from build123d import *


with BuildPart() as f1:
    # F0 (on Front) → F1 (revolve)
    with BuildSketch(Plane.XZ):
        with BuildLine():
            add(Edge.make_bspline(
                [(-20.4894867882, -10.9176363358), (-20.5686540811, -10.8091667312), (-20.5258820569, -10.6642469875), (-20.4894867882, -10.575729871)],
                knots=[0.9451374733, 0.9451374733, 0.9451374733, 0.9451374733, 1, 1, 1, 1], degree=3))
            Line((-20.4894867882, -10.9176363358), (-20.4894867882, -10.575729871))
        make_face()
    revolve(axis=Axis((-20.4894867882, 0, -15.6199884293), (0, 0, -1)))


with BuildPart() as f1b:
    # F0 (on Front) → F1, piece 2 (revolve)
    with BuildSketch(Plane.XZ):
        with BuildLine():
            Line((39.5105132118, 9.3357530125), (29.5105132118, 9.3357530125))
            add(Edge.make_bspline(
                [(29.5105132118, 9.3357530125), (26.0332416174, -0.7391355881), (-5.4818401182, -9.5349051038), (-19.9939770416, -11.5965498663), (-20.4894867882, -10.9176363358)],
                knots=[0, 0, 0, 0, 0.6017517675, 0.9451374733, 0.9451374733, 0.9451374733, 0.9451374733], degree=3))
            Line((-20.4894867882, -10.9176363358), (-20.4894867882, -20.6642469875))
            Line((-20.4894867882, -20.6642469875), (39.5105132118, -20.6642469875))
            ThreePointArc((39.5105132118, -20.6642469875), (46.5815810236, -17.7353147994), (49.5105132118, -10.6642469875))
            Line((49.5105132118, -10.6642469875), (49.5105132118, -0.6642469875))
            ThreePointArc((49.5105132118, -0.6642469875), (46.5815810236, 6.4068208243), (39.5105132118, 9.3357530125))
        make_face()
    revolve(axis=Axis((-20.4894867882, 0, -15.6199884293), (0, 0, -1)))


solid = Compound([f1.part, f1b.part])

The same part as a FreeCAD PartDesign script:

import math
import FreeCAD as App
import Part
import Sketcher

V = App.Vector

doc = App.newDocument("Part")
body = doc.addObject("PartDesign::Body", "Body")

# Sketch on XZ plane
sketch1 = body.newObject("Sketcher::SketchObject", "Sketch")
sketch1.AttachmentSupport = (doc.getObject("XZ_Plane"), [""])
sketch1.MapMode = "FlatFace"
sketch1.addGeometry([
    Part.BSplineCurve([V(-20.489487, -10.917636, 0), V(-20.568654, -10.809167, 0), V(-20.525882, -10.664247, 0), V(-20.489487, -10.57573, 0)], [4, 4], [0.945137473, 1], False, 3, [1, 1, 1, 1], False),
    Part.LineSegment(V(-20.489487, -10.917636, 0), V(-20.489487, -10.57573, 0)),
], False)
sketch1.addGeometry(Part.LineSegment(V(-20.489487, -10.57573, 0), V(-20.489487, -10.917636, 0)), True)  # axis
sketch1.addConstraint([
    Sketcher.Constraint("Block", 0),
    Sketcher.Constraint("Coincident", 0, 1, 1, 1),
    Sketcher.Constraint("Coincident", 1, 2, 0, 2),
    Sketcher.Constraint("Vertical", 2),
    Sketcher.Constraint("Coincident", 2, 1, 1, 2),
    Sketcher.Constraint("Equal", 1, 2),
])
revolution = body.newObject("PartDesign::Revolution", "Revolution")
revolution.Profile = sketch1
revolution.ReferenceAxis = (sketch1, ["Axis0"])
revolution.Angle = 360
body2 = doc.addObject("PartDesign::Body", "Body001")

# Sketch on XZ plane
sketch2 = body2.newObject("Sketcher::SketchObject", "Sketch001")
sketch2.AttachmentSupport = (doc.getObject("XZ_Plane001"), [""])
sketch2.MapMode = "FlatFace"
sketch2.addGeometry([
    Part.LineSegment(V(39.510513, 9.335753, 0), V(29.510513, 9.335753, 0)),  # 0
    Part.BSplineCurve([V(29.510513, 9.335753, 0), V(26.033242, -0.739136, 0), V(-5.48184, -9.534905, 0), V(-19.993977, -11.59655, 0), V(-20.489487, -10.917636, 0)], [4, 1, 4], [0, 0.601751768, 0.945137473], False, 3, [1, 1, 1, 1, 1], False),  # 1
    Part.LineSegment(V(-20.489487, -10.917636, 0), V(-20.489487, -20.664247, 0)),  # 2
    Part.LineSegment(V(-20.489487, -20.664247, 0), V(39.510513, -20.664247, 0)),  # 3
    Part.ArcOfCircle(Part.Circle(V(39.510513, -10.664247, 0), V(0, 0, 1), 10), math.radians(-90), math.radians(0)),  # 4
    Part.LineSegment(V(49.510513, -10.664247, 0), V(49.510513, -0.664247, 0)),  # 5
    Part.ArcOfCircle(Part.Circle(V(39.510513, -0.664247, 0), V(0, 0, 1), 10), math.radians(0), math.radians(90)),  # 6
], False)
sketch2.addGeometry(Part.LineSegment(V(-20.489487, 9.335753, 0), V(-20.489487, -20.664247, 0)), True)  # axis
sketch2.addConstraint([
    Sketcher.Constraint("Block", 1),
    Sketcher.Constraint("Coincident", 0, 2, 1, 1),
    Sketcher.Constraint("Coincident", 1, 2, 2, 1),
    Sketcher.Constraint("Coincident", 2, 2, 3, 1),
    Sketcher.Constraint("Tangent", 3, 2, 4, 1),
    Sketcher.Constraint("Tangent", 4, 2, 5, 1),
    Sketcher.Constraint("Tangent", 5, 2, 6, 1),
    Sketcher.Constraint("Tangent", 6, 2, 0, 1),
    Sketcher.Constraint("Horizontal", 0),
    Sketcher.Constraint("Vertical", 2),
    Sketcher.Constraint("Horizontal", 3),
    Sketcher.Constraint("Vertical", 5),
    Sketcher.Constraint("Vertical", 7),
    Sketcher.Constraint("Coincident", 7, 2, 2, 2),
    Sketcher.Constraint("Equal", 4, 6),
    Sketcher.Constraint("Horizontal", 6, 2, 7, 1),
    Sketcher.Constraint("Equal", 0, 5),
    Sketcher.Constraint("Radius", 4, 10.0),
    Sketcher.Constraint("DistanceX", 0, 2, 0, 1, 10.0),
])
revolution2 = body2.newObject("PartDesign::Revolution", "Revolution001")
revolution2.Profile = sketch2
revolution2.ReferenceAxis = (sketch2, ["Axis0"])
revolution2.Angle = 360

doc.recompute()
